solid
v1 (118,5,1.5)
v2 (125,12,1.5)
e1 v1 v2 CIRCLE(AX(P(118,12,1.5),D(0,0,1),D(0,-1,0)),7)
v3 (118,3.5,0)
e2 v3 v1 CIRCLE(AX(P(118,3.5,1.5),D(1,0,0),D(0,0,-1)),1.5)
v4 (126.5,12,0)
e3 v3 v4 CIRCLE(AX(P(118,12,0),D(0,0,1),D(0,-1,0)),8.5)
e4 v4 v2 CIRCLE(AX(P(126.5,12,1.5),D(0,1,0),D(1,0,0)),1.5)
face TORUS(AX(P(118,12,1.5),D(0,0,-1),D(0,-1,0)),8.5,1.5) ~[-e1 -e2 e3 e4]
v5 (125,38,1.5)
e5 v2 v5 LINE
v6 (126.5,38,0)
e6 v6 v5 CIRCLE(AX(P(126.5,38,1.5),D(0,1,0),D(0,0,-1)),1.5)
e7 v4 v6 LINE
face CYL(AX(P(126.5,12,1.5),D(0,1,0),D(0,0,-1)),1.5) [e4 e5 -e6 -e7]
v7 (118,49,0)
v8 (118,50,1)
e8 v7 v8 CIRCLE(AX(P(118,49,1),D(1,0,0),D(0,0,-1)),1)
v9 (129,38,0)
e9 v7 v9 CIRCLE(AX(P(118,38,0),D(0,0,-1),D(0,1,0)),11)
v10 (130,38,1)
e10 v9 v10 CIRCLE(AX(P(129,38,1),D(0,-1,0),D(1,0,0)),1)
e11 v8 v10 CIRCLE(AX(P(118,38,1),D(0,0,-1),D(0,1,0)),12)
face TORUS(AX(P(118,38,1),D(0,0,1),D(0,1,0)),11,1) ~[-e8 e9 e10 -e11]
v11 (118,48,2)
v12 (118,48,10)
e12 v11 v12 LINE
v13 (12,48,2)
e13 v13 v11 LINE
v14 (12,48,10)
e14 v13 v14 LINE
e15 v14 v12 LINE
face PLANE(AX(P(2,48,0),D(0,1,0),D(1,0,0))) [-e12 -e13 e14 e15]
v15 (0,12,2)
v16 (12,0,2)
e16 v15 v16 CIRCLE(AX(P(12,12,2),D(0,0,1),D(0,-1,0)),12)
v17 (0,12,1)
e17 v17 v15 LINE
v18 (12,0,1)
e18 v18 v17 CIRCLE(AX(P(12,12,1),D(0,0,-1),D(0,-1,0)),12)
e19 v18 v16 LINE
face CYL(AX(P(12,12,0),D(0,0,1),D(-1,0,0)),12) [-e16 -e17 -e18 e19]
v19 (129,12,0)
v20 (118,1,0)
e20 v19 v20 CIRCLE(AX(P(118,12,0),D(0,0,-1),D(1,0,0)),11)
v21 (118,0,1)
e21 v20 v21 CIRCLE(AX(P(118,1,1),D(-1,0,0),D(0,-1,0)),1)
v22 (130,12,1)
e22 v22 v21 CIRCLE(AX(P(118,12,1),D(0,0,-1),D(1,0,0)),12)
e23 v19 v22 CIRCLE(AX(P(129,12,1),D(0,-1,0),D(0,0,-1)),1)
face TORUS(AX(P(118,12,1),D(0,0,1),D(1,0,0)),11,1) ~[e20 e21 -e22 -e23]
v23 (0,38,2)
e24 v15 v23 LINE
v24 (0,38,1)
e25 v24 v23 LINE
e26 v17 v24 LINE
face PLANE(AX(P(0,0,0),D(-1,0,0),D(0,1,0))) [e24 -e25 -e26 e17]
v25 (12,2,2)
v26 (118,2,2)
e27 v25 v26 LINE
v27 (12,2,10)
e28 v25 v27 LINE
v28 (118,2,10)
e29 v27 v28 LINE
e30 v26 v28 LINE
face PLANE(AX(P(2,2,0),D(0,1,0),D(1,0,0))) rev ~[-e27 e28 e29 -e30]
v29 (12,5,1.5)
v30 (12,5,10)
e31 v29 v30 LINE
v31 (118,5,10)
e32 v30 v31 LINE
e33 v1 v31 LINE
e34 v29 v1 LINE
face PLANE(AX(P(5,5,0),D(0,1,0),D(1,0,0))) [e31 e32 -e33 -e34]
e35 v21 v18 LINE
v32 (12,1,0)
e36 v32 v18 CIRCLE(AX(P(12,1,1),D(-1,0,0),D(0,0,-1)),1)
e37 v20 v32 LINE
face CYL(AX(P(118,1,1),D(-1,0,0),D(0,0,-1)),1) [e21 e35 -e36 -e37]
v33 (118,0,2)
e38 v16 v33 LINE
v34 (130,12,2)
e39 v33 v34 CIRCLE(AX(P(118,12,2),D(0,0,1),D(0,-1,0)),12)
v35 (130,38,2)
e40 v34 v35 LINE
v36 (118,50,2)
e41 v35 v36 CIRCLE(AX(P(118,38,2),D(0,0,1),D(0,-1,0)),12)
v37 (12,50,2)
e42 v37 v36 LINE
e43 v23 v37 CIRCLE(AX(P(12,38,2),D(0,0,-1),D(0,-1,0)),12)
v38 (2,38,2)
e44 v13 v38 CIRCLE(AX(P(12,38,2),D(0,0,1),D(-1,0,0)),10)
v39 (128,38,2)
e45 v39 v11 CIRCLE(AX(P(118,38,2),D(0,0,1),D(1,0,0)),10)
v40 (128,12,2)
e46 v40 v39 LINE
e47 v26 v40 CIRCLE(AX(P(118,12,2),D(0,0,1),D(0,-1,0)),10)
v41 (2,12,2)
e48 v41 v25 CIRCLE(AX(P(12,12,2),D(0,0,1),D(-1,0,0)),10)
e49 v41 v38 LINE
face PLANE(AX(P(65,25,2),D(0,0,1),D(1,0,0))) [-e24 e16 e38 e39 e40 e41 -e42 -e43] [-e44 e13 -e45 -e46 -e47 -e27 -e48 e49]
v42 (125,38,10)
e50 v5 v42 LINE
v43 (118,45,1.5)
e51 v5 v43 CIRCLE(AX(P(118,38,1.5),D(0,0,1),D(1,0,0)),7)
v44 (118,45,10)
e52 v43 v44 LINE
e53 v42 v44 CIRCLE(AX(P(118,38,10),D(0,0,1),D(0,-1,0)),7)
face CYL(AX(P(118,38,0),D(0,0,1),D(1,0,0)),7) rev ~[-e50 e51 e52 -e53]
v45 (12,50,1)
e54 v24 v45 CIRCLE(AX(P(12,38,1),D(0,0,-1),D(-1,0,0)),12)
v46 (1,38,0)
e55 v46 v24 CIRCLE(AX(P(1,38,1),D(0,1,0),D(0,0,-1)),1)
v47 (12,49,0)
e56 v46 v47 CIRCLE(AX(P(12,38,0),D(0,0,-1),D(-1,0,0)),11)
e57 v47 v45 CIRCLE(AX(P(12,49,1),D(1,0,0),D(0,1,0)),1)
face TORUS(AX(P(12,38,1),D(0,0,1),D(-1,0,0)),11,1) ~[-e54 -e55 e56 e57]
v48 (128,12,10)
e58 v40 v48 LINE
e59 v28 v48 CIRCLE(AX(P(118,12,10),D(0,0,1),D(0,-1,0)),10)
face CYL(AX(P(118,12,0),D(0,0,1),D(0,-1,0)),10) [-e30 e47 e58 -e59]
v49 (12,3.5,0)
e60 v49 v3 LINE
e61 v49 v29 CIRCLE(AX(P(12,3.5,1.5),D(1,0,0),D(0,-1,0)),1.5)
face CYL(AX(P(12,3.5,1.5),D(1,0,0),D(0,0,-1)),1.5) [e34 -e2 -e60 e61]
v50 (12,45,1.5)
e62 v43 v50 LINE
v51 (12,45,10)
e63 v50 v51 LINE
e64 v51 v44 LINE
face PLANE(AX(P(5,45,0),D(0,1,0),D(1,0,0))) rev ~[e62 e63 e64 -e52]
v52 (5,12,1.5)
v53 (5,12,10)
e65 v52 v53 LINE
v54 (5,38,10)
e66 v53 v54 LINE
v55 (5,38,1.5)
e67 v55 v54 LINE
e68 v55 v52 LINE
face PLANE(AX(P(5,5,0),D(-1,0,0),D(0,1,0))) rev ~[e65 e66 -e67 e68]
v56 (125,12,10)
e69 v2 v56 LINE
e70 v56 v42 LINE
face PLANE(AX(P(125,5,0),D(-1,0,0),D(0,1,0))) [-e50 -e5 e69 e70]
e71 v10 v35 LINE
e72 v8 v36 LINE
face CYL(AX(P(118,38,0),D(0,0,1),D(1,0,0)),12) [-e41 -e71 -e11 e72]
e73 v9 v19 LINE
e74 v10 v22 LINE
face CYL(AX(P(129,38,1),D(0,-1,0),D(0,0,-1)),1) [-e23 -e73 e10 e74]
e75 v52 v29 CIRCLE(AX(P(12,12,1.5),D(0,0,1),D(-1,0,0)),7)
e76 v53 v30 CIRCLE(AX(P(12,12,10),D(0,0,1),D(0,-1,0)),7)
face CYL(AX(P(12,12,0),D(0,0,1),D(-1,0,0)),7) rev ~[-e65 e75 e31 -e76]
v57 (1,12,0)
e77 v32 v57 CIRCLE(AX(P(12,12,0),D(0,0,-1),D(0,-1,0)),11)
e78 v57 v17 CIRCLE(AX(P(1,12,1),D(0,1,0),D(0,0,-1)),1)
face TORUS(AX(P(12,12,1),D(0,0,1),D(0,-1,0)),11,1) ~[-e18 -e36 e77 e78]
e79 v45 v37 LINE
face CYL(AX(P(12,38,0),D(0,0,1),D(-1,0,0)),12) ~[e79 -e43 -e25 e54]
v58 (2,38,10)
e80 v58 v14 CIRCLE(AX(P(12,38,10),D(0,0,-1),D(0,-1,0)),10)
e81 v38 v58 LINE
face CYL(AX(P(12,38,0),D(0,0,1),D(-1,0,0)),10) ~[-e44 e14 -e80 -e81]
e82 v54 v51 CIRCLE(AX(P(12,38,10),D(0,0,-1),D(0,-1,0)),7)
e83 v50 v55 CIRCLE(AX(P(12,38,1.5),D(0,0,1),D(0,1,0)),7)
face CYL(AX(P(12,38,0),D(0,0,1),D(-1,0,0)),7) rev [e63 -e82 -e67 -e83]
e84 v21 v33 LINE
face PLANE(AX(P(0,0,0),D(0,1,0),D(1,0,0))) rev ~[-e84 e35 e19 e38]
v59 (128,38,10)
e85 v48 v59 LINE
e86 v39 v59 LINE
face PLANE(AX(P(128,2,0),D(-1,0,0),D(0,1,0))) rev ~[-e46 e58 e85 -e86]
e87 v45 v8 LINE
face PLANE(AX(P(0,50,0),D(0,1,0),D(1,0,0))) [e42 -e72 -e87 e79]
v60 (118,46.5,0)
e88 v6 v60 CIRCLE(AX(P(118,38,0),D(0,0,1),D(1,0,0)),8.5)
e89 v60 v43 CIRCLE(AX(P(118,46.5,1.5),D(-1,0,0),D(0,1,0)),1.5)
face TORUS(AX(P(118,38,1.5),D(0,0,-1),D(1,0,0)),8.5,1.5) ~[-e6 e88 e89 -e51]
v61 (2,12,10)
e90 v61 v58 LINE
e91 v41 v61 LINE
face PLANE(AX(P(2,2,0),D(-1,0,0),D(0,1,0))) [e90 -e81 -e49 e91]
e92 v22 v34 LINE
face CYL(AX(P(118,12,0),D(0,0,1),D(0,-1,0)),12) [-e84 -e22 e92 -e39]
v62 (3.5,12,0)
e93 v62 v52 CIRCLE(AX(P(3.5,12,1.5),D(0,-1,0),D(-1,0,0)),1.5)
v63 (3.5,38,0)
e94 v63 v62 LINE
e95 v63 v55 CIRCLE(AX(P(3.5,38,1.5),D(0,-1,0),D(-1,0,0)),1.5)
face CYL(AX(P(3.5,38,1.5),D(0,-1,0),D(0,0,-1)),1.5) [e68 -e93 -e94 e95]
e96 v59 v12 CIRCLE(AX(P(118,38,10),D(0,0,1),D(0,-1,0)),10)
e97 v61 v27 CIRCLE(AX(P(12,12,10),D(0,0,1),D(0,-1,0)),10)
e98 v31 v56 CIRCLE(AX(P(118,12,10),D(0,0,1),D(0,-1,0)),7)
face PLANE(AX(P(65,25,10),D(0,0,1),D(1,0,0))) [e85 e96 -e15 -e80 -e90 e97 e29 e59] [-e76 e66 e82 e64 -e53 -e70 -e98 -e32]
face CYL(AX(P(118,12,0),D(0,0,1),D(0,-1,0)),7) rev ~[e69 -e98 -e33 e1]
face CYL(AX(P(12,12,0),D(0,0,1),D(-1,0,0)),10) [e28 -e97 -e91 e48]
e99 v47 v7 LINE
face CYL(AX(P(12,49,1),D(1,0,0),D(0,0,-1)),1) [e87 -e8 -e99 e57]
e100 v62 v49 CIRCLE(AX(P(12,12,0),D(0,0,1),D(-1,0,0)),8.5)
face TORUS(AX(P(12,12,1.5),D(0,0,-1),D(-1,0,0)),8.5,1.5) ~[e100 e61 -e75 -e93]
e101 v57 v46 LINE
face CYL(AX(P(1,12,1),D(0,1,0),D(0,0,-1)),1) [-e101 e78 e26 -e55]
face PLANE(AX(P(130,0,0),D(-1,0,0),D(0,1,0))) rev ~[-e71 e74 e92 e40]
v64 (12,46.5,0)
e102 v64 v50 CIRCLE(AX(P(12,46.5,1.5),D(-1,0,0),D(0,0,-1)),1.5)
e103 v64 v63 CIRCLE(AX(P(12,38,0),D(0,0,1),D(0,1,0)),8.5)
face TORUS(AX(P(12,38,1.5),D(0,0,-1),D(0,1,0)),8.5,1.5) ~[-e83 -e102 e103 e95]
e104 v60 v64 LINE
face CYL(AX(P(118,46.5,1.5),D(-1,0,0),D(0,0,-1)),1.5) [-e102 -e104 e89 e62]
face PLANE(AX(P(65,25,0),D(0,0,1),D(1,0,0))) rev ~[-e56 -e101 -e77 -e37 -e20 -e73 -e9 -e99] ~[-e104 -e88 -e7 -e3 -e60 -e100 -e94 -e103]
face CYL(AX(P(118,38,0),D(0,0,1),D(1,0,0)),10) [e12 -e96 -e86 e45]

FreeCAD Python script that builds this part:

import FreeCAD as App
import Part
import Sketcher
from FreeCAD import Vector
Q = App.Units.Quantity


def edges_at(feature, points):
    """Names of the edges that pass closest to the given points."""
    edges = feature.Shape.Edges
    near = lambda p: min(range(len(edges)), key=lambda i: edges[i].distToShape(Part.Vertex(*p))[0])
    return sorted({f"Edge{near(p) + 1}" for p in points})


def add_polygon(sketch, points):
    """Adds a closed chain of lines whose ends are joined by coincident constraints."""
    first, n = sketch.GeometryCount, len(points)
    for a, b in zip(points, points[1:] + points[:1]):
        sketch.addGeometry(Part.LineSegment(App.Vector(*a, 0), App.Vector(*b, 0)), False)
    for i in range(n):
        sketch.addConstraint(Sketcher.Constraint("Coincident", first + i, 2, first + (i + 1) % n, 1))

doc = App.newDocument("Part")
body = doc.addObject("PartDesign::Body", "Body")

# Sketch on XY plane
sketch1 = body.newObject("Sketcher::SketchObject", "Sketch")
sketch1.AttachmentSupport = (doc.getObject("XY_Plane"), [""])
sketch1.MapMode = "FlatFace"
add_polygon(sketch1, [(0, 40), (0, 0), (120, 0), (120, 40)])  # lines 0-3
sketch1.addConstraint(Sketcher.Constraint("Vertical", 0))
sketch1.addConstraint(Sketcher.Constraint("Horizontal", 1))
sketch1.addConstraint(Sketcher.Constraint("Vertical", 2))
sketch1.addConstraint(Sketcher.Constraint("Horizontal", 3))
sketch1.addConstraint(Sketcher.Constraint("Coincident", 0, 2, -1, 1))
sketch1.addConstraint(Sketcher.Constraint("DistanceX", 1, 1, 1, 2, Q("120 mm")))
sketch1.addConstraint(Sketcher.Constraint("DistanceY", 0, 2, 0, 1, Q("40 mm")))
pad1 = body.newObject("PartDesign::Pad", "Pad")
pad1.Profile = sketch1
pad1.Length = 10
doc.recompute()

fillet = body.newObject("PartDesign::Fillet", "Fillet")
fillet.Base = (pad1, edges_at(pad1, [
    (0, 0, 5),
    (0, 40, 5),
    (120, 0, 5),
    (120, 40, 5),
]))
fillet.Radius = 7
body2 = doc.addObject("PartDesign::Body", "Body001")
doc.recompute()

body.Placement = App.Placement(Vector(5, 5, 0), App.Rotation(Vector(0, 0, 1), 0))
boolean = body2.newObject("PartDesign::Boolean", "Boolean")
boolean.Type = "Fuse"
boolean.addObjects([body])
body3 = doc.addObject("PartDesign::Body", "Body002")

# Sketch on XY plane
sketch2 = body3.newObject("Sketcher::SketchObject", "Sketch001")
sketch2.AttachmentSupport = (doc.getObject("XY_Plane002"), [""])
sketch2.MapMode = "FlatFace"
add_polygon(sketch2, [(0, 50), (0, 0), (130, 0), (130, 50)])  # lines 0-3
sketch2.addConstraint(Sketcher.Constraint("Vertical", 0))
sketch2.addConstraint(Sketcher.Constraint("Horizontal", 1))
sketch2.addConstraint(Sketcher.Constraint("Vertical", 2))
sketch2.addConstraint(Sketcher.Constraint("Horizontal", 3))
sketch2.addConstraint(Sketcher.Constraint("Coincident", 0, 2, -1, 1))
sketch2.addConstraint(Sketcher.Constraint("DistanceX", 1, 1, 1, 2, Q("130 mm")))
sketch2.addConstraint(Sketcher.Constraint("DistanceY", 0, 2, 0, 1, Q("50 mm")))
pad2 = body3.newObject("PartDesign::Pad", "Pad001")
pad2.Profile = sketch2
pad2.Length = 2
doc.recompute()

fillet2 = body3.newObject("PartDesign::Fillet", "Fillet001")
fillet2.Base = (pad2, edges_at(pad2, [
    (0, 0, 1),
    (0, 50, 1),
    (130, 0, 1),
    (130, 50, 1),
]))
fillet2.Radius = 12
body4 = doc.addObject("PartDesign::Body", "Body003")

# Sketch on XY plane
sketch3 = body4.newObject("Sketcher::SketchObject", "Sketch002")
sketch3.AttachmentSupport = (doc.getObject("XY_Plane003"), [""])
sketch3.MapMode = "FlatFace"
add_polygon(sketch3, [(0, 46), (0, 0), (126, 0), (126, 46)])  # lines 0-3
sketch3.addConstraint(Sketcher.Constraint("Vertical", 0))
sketch3.addConstraint(Sketcher.Constraint("Horizontal", 1))
sketch3.addConstraint(Sketcher.Constraint("Vertical", 2))
sketch3.addConstraint(Sketcher.Constraint("Horizontal", 3))
sketch3.addConstraint(Sketcher.Constraint("Coincident", 0, 2, -1, 1))
sketch3.addConstraint(Sketcher.Constraint("DistanceX", 1, 1, 1, 2, Q("126 mm")))
sketch3.addConstraint(Sketcher.Constraint("DistanceY", 0, 2, 0, 1, Q("46 mm")))
pad3 = body4.newObject("PartDesign::Pad", "Pad002")
pad3.Profile = sketch3
pad3.Length = 10
doc.recompute()

fillet3 = body4.newObject("PartDesign::Fillet", "Fillet002")
fillet3.Base = (pad3, edges_at(pad3, [
    (0, 0, 5),
    (0, 46, 5),
    (126, 0, 5),
    (126, 46, 5),
]))
fillet3.Radius = 10
body5 = doc.addObject("PartDesign::Body", "Body004")
doc.recompute()

body4.Placement = App.Placement(Vector(2, 2, 0), App.Rotation(Vector(0, 0, 1), 0))
boolean2 = body5.newObject("PartDesign::Boolean", "Boolean001")
boolean2.Type = "Fuse"
boolean2.addObjects([body4])
doc.recompute()

boolean3 = body5.newObject("PartDesign::Boolean", "Boolean002")
boolean3.Type = "Fuse"
boolean3.addObjects([body3])
doc.recompute()

boolean4 = body5.newObject("PartDesign::Boolean", "Boolean003")
boolean4.Type = "Cut"
boolean4.addObjects([body2])
doc.recompute()

fillet4 = body5.newObject("PartDesign::Fillet", "Fillet003")
fillet4.Base = (boolean4, edges_at(boolean4, [
    (7.05, 7.05, 0),
    (65, 5, 0),
    (122.95, 7.05, 0),
    (125, 25, 0),
    (122.95, 42.95, 0),
    (65, 45, 0),
    (7.05, 42.95, 0),
    (5, 25, 0),
]))
fillet4.Radius = 1.5
doc.recompute()

fillet5 = body5.newObject("PartDesign::Fillet", "Fillet004")
fillet5.Base = (fillet4, edges_at(fillet4, [
    (0, 25, 0),
    (3.515, 3.515, 0),
    (3.515, 46.485, 0),
    (65, 0, 0),
    (65, 50, 0),
    (126.485, 3.515, 0),
    (126.485, 46.485, 0),
    (130, 25, 0),
]))
fillet5.Radius = 1

doc.recompute()
